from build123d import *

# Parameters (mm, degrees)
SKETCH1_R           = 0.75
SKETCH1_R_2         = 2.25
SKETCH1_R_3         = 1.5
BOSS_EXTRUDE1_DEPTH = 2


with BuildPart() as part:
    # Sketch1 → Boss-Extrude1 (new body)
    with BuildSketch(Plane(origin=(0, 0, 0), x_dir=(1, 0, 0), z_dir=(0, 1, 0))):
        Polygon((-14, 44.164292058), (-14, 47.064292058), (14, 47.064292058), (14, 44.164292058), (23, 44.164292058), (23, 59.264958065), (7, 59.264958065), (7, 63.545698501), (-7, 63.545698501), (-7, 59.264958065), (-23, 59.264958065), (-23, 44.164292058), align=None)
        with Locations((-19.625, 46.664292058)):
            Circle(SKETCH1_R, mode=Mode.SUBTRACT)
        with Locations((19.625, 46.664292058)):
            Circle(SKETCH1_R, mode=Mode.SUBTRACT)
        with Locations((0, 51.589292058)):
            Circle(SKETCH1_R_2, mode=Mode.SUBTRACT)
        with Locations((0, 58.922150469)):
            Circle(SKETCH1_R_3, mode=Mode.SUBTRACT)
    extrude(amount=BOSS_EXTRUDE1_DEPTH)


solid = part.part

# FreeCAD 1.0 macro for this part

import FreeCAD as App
import Part
import Sketcher
Q = App.Units.Quantity

doc = App.newDocument("Part")
body = doc.addObject("PartDesign::Body", "Body")

# Sketch on XZ plane
sketch1 = body.newObject("Sketcher::SketchObject", "Sketch")
sketch1.AttachmentSupport = (doc.getObject("XZ_Plane"), [""])
sketch1.MapMode = "FlatFace"
sketch1.addGeometry([
    Part.LineSegment(App.Vector(-14, -44.164292, 0), App.Vector(-14, -47.064292, 0)),  # 0
    Part.LineSegment(App.Vector(-14, -47.064292, 0), App.Vector(14, -47.064292, 0)),  # 1
    Part.LineSegment(App.Vector(14, -47.064292, 0), App.Vector(14, -44.164292, 0)),  # 2
    Part.LineSegment(App.Vector(14, -44.164292, 0), App.Vector(23, -44.164292, 0)),  # 3
    Part.LineSegment(App.Vector(23, -44.164292, 0), App.Vector(23, -59.264958, 0)),  # 4
    Part.LineSegment(App.Vector(23, -59.264958, 0), App.Vector(7, -59.264958, 0)),  # 5
    Part.LineSegment(App.Vector(7, -59.264958, 0), App.Vector(7, -63.545699, 0)),  # 6
    Part.LineSegment(App.Vector(7, -63.545699, 0), App.Vector(-7, -63.545699, 0)),  # 7
    Part.LineSegment(App.Vector(-7, -63.545699, 0), App.Vector(-7, -59.264958, 0)),  # 8
    Part.LineSegment(App.Vector(-7, -59.264958, 0), App.Vector(-23, -59.264958, 0)),  # 9
    Part.LineSegment(App.Vector(-23, -59.264958, 0), App.Vector(-23, -44.164292, 0)),  # 10
    Part.LineSegment(App.Vector(-23, -44.164292, 0), App.Vector(-14, -44.164292, 0)),  # 11
    Part.Circle(App.Vector(-19.625, -46.664292, 0), App.Vector(0, 0, 1), 0.75),  # 12
    Part.Circle(App.Vector(19.625, -46.664292, 0), App.Vector(0, 0, 1), 0.75),  # 13
    Part.Circle(App.Vector(0, -51.589292, 0), App.Vector(0, 0, 1), 2.25),  # 14
    Part.Circle(App.Vector(0, -58.92215, 0), App.Vector(0, 0, 1), 1.5),  # 15
], False)
sketch1.addConstraint([
    Sketcher.Constraint("Coincident", 0, 2, 1, 1),
    Sketcher.Constraint("Coincident", 1, 2, 2, 1),
    Sketcher.Constraint("Coincident", 2, 2, 3, 1),
    Sketcher.Constraint("Coincident", 3, 2, 4, 1),
    Sketcher.Constraint("Coincident", 4, 2, 5, 1),
    Sketcher.Constraint("Coincident", 5, 2, 6, 1),
    Sketcher.Constraint("Coincident", 6, 2, 7, 1),
    Sketcher.Constraint("Coincident", 7, 2, 8, 1),
    Sketcher.Constraint("Coincident", 8, 2, 9, 1),
    Sketcher.Constraint("Coincident", 9, 2, 10, 1),
    Sketcher.Constraint("Coincident", 10, 2, 11, 1),
    Sketcher.Constraint("Coincident", 11, 2, 0, 1),
    Sketcher.Constraint("Vertical", 0),
    Sketcher.Constraint("Horizontal", 1),
    Sketcher.Constraint("Vertical", 2),
    Sketcher.Constraint("Horizontal", 3),
    Sketcher.Constraint("Vertical", 4),
    Sketcher.Constraint("Horizontal", 5),
    Sketcher.Constraint("Vertical", 6),
    Sketcher.Constraint("Horizontal", 7),
    Sketcher.Constraint("Vertical", 8),
    Sketcher.Constraint("Horizontal", 9),
    Sketcher.Constraint("Vertical", 10),
    Sketcher.Constraint("Horizontal", 11),
    Sketcher.Constraint("Equal", 12, 13),
    Sketcher.Constraint("Symmetric", 12, 3, 13, 3, -2),
    Sketcher.Constraint("Symmetric", 5, 2, 8, 2, -2),
    Sketcher.Constraint("Symmetric", 3, 2, 10, 2, -2),
    Sketcher.Constraint("PointOnObject", 14, 3, -2),
    Sketcher.Constraint("PointOnObject", 15, 3, -2),
    Sketcher.Constraint("Equal", 3, 11),
    Sketcher.Constraint("Diameter", 15, Q("3 mm")),
    Sketcher.Constraint("Diameter", 12, Q("1.5 mm")),
    Sketcher.Constraint("Diameter", 14, Q("4.5 mm")),
    Sketcher.Constraint("DistanceX", 1, 1, 1, 2, Q("28 mm")),
    Sketcher.Constraint("DistanceX", 3, 1, 3, 2, Q("9 mm")),
    Sketcher.Constraint("DistanceX", 5, 2, 5, 1, Q("16 mm")),
    Sketcher.Constraint("DistanceY", 0, 2, 0, 1, Q("2.9 mm")),
    Sketcher.Constraint("DistanceY", 0, 2, 12, 3, Q("0.4 mm")),
    Sketcher.Constraint("DistanceX", 12, 3, 13, 3, Q("39.25 mm")),
    Sketcher.Constraint("DistanceY", 14, 3, 12, 3, Q("4.925 mm")),
    Sketcher.Constraint("DistanceY", 6, 2, 6, 1, Q("4.28074 mm")),
    Sketcher.Constraint("DistanceY", 6, 2, -1, 1, Q("63.545699 mm")),
    Sketcher.Constraint("DistanceY", 4, 2, 4, 1, Q("15.100666 mm")),
    Sketcher.Constraint("DistanceY", 15, 3, -1, 1, Q("58.92215 mm")),
])
pad1 = body.newObject("PartDesign::Pad", "Pad")
pad1.Profile = sketch1
pad1.Length = 2
pad1.Reversed = True

doc.recompute()
